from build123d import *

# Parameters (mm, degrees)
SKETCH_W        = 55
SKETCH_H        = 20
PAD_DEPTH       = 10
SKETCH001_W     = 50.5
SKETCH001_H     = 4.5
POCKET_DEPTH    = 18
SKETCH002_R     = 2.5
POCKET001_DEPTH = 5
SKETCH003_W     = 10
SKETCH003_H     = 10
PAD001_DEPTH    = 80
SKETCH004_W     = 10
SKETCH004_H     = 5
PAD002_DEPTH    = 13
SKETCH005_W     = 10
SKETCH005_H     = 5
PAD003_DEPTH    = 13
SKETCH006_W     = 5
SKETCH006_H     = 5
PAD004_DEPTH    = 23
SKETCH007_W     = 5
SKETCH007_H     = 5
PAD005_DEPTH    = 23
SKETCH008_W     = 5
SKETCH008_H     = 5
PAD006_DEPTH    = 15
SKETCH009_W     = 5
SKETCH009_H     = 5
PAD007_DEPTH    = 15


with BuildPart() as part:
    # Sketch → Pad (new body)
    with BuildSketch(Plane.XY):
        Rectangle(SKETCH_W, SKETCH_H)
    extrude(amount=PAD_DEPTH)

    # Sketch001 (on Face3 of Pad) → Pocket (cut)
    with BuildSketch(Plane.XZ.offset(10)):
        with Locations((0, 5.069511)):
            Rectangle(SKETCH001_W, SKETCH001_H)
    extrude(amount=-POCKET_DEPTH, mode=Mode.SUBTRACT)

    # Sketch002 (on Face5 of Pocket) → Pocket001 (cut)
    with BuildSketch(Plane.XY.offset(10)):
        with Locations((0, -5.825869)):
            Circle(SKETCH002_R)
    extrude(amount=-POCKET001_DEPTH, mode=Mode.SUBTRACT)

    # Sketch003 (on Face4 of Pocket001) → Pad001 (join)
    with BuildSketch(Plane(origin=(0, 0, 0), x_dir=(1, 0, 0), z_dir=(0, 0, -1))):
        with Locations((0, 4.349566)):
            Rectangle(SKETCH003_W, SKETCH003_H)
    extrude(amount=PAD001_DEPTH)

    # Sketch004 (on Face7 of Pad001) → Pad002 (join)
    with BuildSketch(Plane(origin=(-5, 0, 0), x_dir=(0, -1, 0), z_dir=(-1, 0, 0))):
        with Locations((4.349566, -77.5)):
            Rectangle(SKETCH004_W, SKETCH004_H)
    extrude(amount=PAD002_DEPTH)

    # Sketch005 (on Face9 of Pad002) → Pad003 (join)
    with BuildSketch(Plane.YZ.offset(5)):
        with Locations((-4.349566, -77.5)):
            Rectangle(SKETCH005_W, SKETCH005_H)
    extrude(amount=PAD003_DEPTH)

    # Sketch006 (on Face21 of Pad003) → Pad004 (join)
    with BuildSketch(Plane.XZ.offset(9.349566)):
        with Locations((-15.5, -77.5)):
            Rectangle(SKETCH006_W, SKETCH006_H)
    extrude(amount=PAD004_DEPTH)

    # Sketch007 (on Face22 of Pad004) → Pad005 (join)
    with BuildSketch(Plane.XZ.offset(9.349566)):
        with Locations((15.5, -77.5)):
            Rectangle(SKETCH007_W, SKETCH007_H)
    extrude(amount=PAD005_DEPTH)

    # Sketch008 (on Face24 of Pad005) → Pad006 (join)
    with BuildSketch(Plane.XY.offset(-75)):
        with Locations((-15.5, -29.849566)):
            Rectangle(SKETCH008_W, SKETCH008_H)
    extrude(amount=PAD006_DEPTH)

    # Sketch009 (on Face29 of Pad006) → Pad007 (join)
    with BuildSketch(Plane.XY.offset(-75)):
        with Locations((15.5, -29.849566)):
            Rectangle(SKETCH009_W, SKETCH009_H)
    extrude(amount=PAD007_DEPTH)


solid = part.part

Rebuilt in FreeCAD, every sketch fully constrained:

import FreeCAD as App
import Part
import Sketcher
from FreeCAD import Vector

doc = App.newDocument("Part")
body = doc.addObject("PartDesign::Body", "Body")

sketch1 = doc.addObject("Sketcher::SketchObject", "Sketch")
body.addObject(sketch1)
sketch1.AttachmentSupport = (doc.XY_Plane, [""])
sketch1.MapMode = "FlatFace"
sketch1.addGeometry([
    Part.LineSegment(Vector(-27.5, 10, 0), Vector(-27.5, -10, 0)),
    Part.LineSegment(Vector(-27.5, -10, 0), Vector(27.5, -10, 0)),
    Part.LineSegment(Vector(27.5, -10, 0), Vector(27.5, 10, 0)),
    Part.LineSegment(Vector(27.5, 10, 0), Vector(-27.5, 10, 0)),
], False)
sketch1.addConstraint([
    Sketcher.Constraint("Coincident", 0, 2, 1, 1),
    Sketcher.Constraint("Coincident", 1, 2, 2, 1),
    Sketcher.Constraint("Coincident", 2, 2, 3, 1),
    Sketcher.Constraint("Coincident", 3, 2, 0, 1),
    Sketcher.Constraint("Vertical", 0),
    Sketcher.Constraint("Horizontal", 1),
    Sketcher.Constraint("Vertical", 2),
    Sketcher.Constraint("Horizontal", 3),
    Sketcher.Constraint("Symmetric", 0, 2, 2, 2, -1, 1),
    Sketcher.Constraint("DistanceX", 1, 1, 1, 2, 55.0),
    Sketcher.Constraint("DistanceY", 0, 2, 0, 1, 20.0),
])
pad1 = doc.addObject("PartDesign::Pad", "Pad")
body.addObject(pad1)
pad1.Profile = sketch1
pad1.Length = 10

sketch2 = doc.addObject("Sketcher::SketchObject", "Sketch001")
body.addObject(sketch2)
sketch2.AttachmentSupport = (doc.XZ_Plane, [""])
sketch2.MapMode = "FlatFace"
sketch2.AttachmentOffset = App.Placement(Vector(0, 0, 10), App.Rotation())
sketch2.addGeometry([
    Part.LineSegment(Vector(-25.25, 7.319511, 0), Vector(-25.25, 2.819511, 0)),
    Part.LineSegment(Vector(-25.25, 2.819511, 0), Vector(25.25, 2.819511, 0)),
    Part.LineSegment(Vector(25.25, 2.819511, 0), Vector(25.25, 7.319511, 0)),
    Part.LineSegment(Vector(25.25, 7.319511, 0), Vector(-25.25, 7.319511, 0)),
], False)
sketch2.addConstraint([
    Sketcher.Constraint("Coincident", 0, 2, 1, 1),
    Sketcher.Constraint("Coincident", 1, 2, 2, 1),
    Sketcher.Constraint("Coincident", 2, 2, 3, 1),
    Sketcher.Constraint("Coincident", 3, 2, 0, 1),
    Sketcher.Constraint("Vertical", 0),
    Sketcher.Constraint("Horizontal", 1),
    Sketcher.Constraint("Vertical", 2),
    Sketcher.Constraint("Horizontal", 3),
    Sketcher.Constraint("DistanceX", 1, 1, 1, 2, 50.5),
    Sketcher.Constraint("DistanceY", 0, 2, 0, 1, 4.5),
    Sketcher.Constraint("DistanceX", 0, 2, -1, 1, 25.25),
    Sketcher.Constraint("DistanceY", -1, 1, 0, 2, 2.819511),
])
pocket1 = doc.addObject("PartDesign::Pocket", "Pocket")
body.addObject(pocket1)
pocket1.Profile = sketch2
pocket1.Length = 18

sketch3 = doc.addObject("Sketcher::SketchObject", "Sketch002")
body.addObject(sketch3)
sketch3.AttachmentSupport = (doc.XY_Plane, [""])
sketch3.MapMode = "FlatFace"
sketch3.AttachmentOffset = App.Placement(Vector(0, 0, 10), App.Rotation())
sketch3.addGeometry(Part.Circle(Vector(0, -5.825869, 0), Vector(0, 0, 1), 2.5), False)
sketch3.addConstraint([
    Sketcher.Constraint("PointOnObject", 0, 3, -2),
    Sketcher.Constraint("Diameter", 0, 5.0),
    Sketcher.Constraint("DistanceY", 0, 3, -1, 1, 5.825869),
])
pocket2 = doc.addObject("PartDesign::Pocket", "Pocket001")
body.addObject(pocket2)
pocket2.Profile = sketch3
pocket2.Length = 5

sketch4 = doc.addObject("Sketcher::SketchObject", "Sketch003")
body.addObject(sketch4)
sketch4.AttachmentSupport = (doc.XY_Plane, [""])
sketch4.MapMode = "FlatFace"
sketch4.addGeometry([
    Part.LineSegment(Vector(-5, -9.349566, 0), Vector(-5, 0.650434, 0)),
    Part.LineSegment(Vector(-5, 0.650434, 0), Vector(5, 0.650434, 0)),
    Part.LineSegment(Vector(5, 0.650434, 0), Vector(5, -9.349566, 0)),
    Part.LineSegment(Vector(5, -9.349566, 0), Vector(-5, -9.349566, 0)),
], False)
sketch4.addConstraint([
    Sketcher.Constraint("Coincident", 0, 2, 1, 1),
    Sketcher.Constraint("Coincident", 1, 2, 2, 1),
    Sketcher.Constraint("Coincident", 2, 2, 3, 1),
    Sketcher.Constraint("Coincident", 3, 2, 0, 1),
    Sketcher.Constraint("Vertical", 0),
    Sketcher.Constraint("Horizontal", 1),
    Sketcher.Constraint("Vertical", 2),
    Sketcher.Constraint("Horizontal", 3),
    Sketcher.Constraint("Equal", 3, 0),
    Sketcher.Constraint("DistanceX", 1, 1, 1, 2, 10.0),
    Sketcher.Constraint("DistanceX", 0, 2, -1, 1, 5.0),
    Sketcher.Constraint("DistanceY", -1, 1, 0, 2, 0.650434),
])
pad2 = doc.addObject("PartDesign::Pad", "Pad001")
body.addObject(pad2)
pad2.Profile = sketch4
pad2.Length = 80
pad2.Reversed = True

sketch5 = doc.addObject("Sketcher::SketchObject", "Sketch004")
body.addObject(sketch5)
sketch5.AttachmentSupport = (doc.YZ_Plane, [""])
sketch5.MapMode = "FlatFace"
sketch5.AttachmentOffset = App.Placement(Vector(0, 0, -5), App.Rotation())
sketch5.addGeometry([
    Part.LineSegment(Vector(0.650434, -75, 0), Vector(0.650434, -80, 0)),
    Part.LineSegment(Vector(0.650434, -80, 0), Vector(-9.349566, -80, 0)),
    Part.LineSegment(Vector(-9.349566, -80, 0), Vector(-9.349566, -75, 0)),
    Part.LineSegment(Vector(-9.349566, -75, 0), Vector(0.650434, -75, 0)),
], False)
sketch5.addConstraint([
    Sketcher.Constraint("Coincident", 0, 2, 1, 1),
    Sketcher.Constraint("Coincident", 1, 2, 2, 1),
    Sketcher.Constraint("Coincident", 2, 2, 3, 1),
    Sketcher.Constraint("Coincident", 3, 2, 0, 1),
    Sketcher.Constraint("Vertical", 0),
    Sketcher.Constraint("Horizontal", 1),
    Sketcher.Constraint("Vertical", 2),
    Sketcher.Constraint("Horizontal", 3),
    Sketcher.Constraint("DistanceX", 1, 2, 1, 1, 10.0),
    Sketcher.Constraint("DistanceY", 0, 2, 0, 1, 5.0),
    Sketcher.Constraint("DistanceY", 0, 2, -1, 1, 80.0),
    Sketcher.Constraint("DistanceX", -1, 1, 0, 2, 0.650434),
])
pad3 = doc.addObject("PartDesign::Pad", "Pad002")
body.addObject(pad3)
pad3.Profile = sketch5
pad3.Length = 13
pad3.Reversed = True

sketch6 = doc.addObject("Sketcher::SketchObject", "Sketch005")
body.addObject(sketch6)
sketch6.AttachmentSupport = (doc.YZ_Plane, [""])
sketch6.MapMode = "FlatFace"
sketch6.AttachmentOffset = App.Placement(Vector(0, 0, 5), App.Rotation())
sketch6.addGeometry([
    Part.LineSegment(Vector(-9.349566, -75, 0), Vector(-9.349566, -80, 0)),
    Part.LineSegment(Vector(-9.349566, -80, 0), Vector(0.650434, -80, 0)),
    Part.LineSegment(Vector(0.650434, -80, 0), Vector(0.650434, -75, 0)),
    Part.LineSegment(Vector(0.650434, -75, 0), Vector(-9.349566, -75, 0)),
], False)
sketch6.addConstraint([
    Sketcher.Constraint("Coincident", 0, 2, 1, 1),
    Sketcher.Constraint("Coincident", 1, 2, 2, 1),
    Sketcher.Constraint("Coincident", 2, 2, 3, 1),
    Sketcher.Constraint("Coincident", 3, 2, 0, 1),
    Sketcher.Constraint("Vertical", 0),
    Sketcher.Constraint("Horizontal", 1),
    Sketcher.Constraint("Vertical", 2),
    Sketcher.Constraint("Horizontal", 3),
    Sketcher.Constraint("DistanceX", 1, 1, 1, 2, 10.0),
    Sketcher.Constraint("DistanceY", 0, 2, 0, 1, 5.0),
    Sketcher.Constraint("DistanceY", 0, 2, -1, 1, 80.0),
    Sketcher.Constraint("DistanceX", 0, 2, -1, 1, 9.349566),
])
pad4 = doc.addObject("PartDesign::Pad", "Pad003")
body.addObject(pad4)
pad4.Profile = sketch6
pad4.Length = 13

sketch7 = doc.addObject("Sketcher::SketchObject", "Sketch006")
body.addObject(sketch7)
sketch7.AttachmentSupport = (doc.XZ_Plane, [""])
sketch7.MapMode = "FlatFace"
sketch7.AttachmentOffset = App.Placement(Vector(0, 0, 9.349566), App.Rotation())
sketch7.addGeometry([
    Part.LineSegment(Vector(-18, -75, 0), Vector(-18, -80, 0)),
    Part.LineSegment(Vector(-18, -80, 0), Vector(-13, -80, 0)),
    Part.LineSegment(Vector(-13, -80, 0), Vector(-13, -75, 0)),
    Part.LineSegment(Vector(-13, -75, 0), Vector(-18, -75, 0)),
], False)
sketch7.addConstraint([
    Sketcher.Constraint("Coincident", 0, 2, 1, 1),
    Sketcher.Constraint("Coincident", 1, 2, 2, 1),
    Sketcher.Constraint("Coincident", 2, 2, 3, 1),
    Sketcher.Constraint("Coincident", 3, 2, 0, 1),
    Sketcher.Constraint("Vertical", 0),
    Sketcher.Constraint("Horizontal", 1),
    Sketcher.Constraint("Vertical", 2),
    Sketcher.Constraint("Horizontal", 3),
    Sketcher.Constraint("Equal", 3, 0),
    Sketcher.Constraint("DistanceX", 1, 1, 1, 2, 5.0),
    Sketcher.Constraint("DistanceX", 0, 2, -1, 1, 18.0),
    Sketcher.Constraint("DistanceY", 0, 2, -1, 1, 80.0),
])
pad5 = doc.addObject("PartDesign::Pad", "Pad004")
body.addObject(pad5)
pad5.Profile = sketch7
pad5.Length = 23

sketch8 = doc.addObject("Sketcher::SketchObject", "Sketch007")
body.addObject(sketch8)
sketch8.AttachmentSupport = (doc.XZ_Plane, [""])
sketch8.MapMode = "FlatFace"
sketch8.AttachmentOffset = App.Placement(Vector(0, 0, 9.349566), App.Rotation())
sketch8.addGeometry([
    Part.LineSegment(Vector(13, -75, 0), Vector(13, -80, 0)),
    Part.LineSegment(Vector(13, -80, 0), Vector(18, -80, 0)),
    Part.LineSegment(Vector(18, -80, 0), Vector(18, -75, 0)),
    Part.LineSegment(Vector(18, -75, 0), Vector(13, -75, 0)),
], False)
sketch8.addConstraint([
    Sketcher.Constraint("Coincident", 0, 2, 1, 1),
    Sketcher.Constraint("Coincident", 1, 2, 2, 1),
    Sketcher.Constraint("Coincident", 2, 2, 3, 1),
    Sketcher.Constraint("Coincident", 3, 2, 0, 1),
    Sketcher.Constraint("Vertical", 0),
    Sketcher.Constraint("Horizontal", 1),
    Sketcher.Constraint("Vertical", 2),
    Sketcher.Constraint("Horizontal", 3),
    Sketcher.Constraint("Equal", 3, 0),
    Sketcher.Constraint("DistanceX", 1, 1, 1, 2, 5.0),
    Sketcher.Constraint("DistanceX", -1, 1, 0, 2, 13.0),
    Sketcher.Constraint("DistanceY", 0, 2, -1, 1, 80.0),
])
pad6 = doc.addObject("PartDesign::Pad", "Pad005")
body.addObject(pad6)
pad6.Profile = sketch8
pad6.Length = 23

sketch9 = doc.addObject("Sketcher::SketchObject", "Sketch008")
body.addObject(sketch9)
sketch9.AttachmentSupport = (doc.XY_Plane, [""])
sketch9.MapMode = "FlatFace"
sketch9.AttachmentOffset = App.Placement(Vector(0, 0, -75), App.Rotation())
sketch9.addGeometry([
    Part.LineSegment(Vector(-18, -27.349566, 0), Vector(-18, -32.349566, 0)),
    Part.LineSegment(Vector(-18, -32.349566, 0), Vector(-13, -32.349566, 0)),
    Part.LineSegment(Vector(-13, -32.349566, 0), Vector(-13, -27.349566, 0)),
    Part.LineSegment(Vector(-13, -27.349566, 0), Vector(-18, -27.349566, 0)),
], False)
sketch9.addConstraint([
    Sketcher.Constraint("Coincident", 0, 2, 1, 1),
    Sketcher.Constraint("Coincident", 1, 2, 2, 1),
    Sketcher.Constraint("Coincident", 2, 2, 3, 1),
    Sketcher.Constraint("Coincident", 3, 2, 0, 1),
    Sketcher.Constraint("Vertical", 0),
    Sketcher.Constraint("Horizontal", 1),
    Sketcher.Constraint("Vertical", 2),
    Sketcher.Constraint("Horizontal", 3),
    Sketcher.Constraint("Equal", 3, 0),
    Sketcher.Constraint("DistanceX", 1, 1, 1, 2, 5.0),
    Sketcher.Constraint("DistanceX", 0, 2, -1, 1, 18.0),
    Sketcher.Constraint("DistanceY", 0, 2, -1, 1, 32.349566),
])
pad7 = doc.addObject("PartDesign::Pad", "Pad006")
body.addObject(pad7)
pad7.Profile = sketch9
pad7.Length = 15

sketch10 = doc.addObject("Sketcher::SketchObject", "Sketch009")
body.addObject(sketch10)
sketch10.AttachmentSupport = (doc.XY_Plane, [""])
sketch10.MapMode = "FlatFace"
sketch10.AttachmentOffset = App.Placement(Vector(0, 0, -75), App.Rotation())
sketch10.addGeometry([
    Part.LineSegment(Vector(13, -27.349566, 0), Vector(13, -32.349566, 0)),
    Part.LineSegment(Vector(13, -32.349566, 0), Vector(18, -32.349566, 0)),
    Part.LineSegment(Vector(18, -32.349566, 0), Vector(18, -27.349566, 0)),
    Part.LineSegment(Vector(18, -27.349566, 0), Vector(13, -27.349566, 0)),
], False)
sketch10.addConstraint([
    Sketcher.Constraint("Coincident", 0, 2, 1, 1),
    Sketcher.Constraint("Coincident", 1, 2, 2, 1),
    Sketcher.Constraint("Coincident", 2, 2, 3, 1),
    Sketcher.Constraint("Coincident", 3, 2, 0, 1),
    Sketcher.Constraint("Vertical", 0),
    Sketcher.Constraint("Horizontal", 1),
    Sketcher.Constraint("Vertical", 2),
    Sketcher.Constraint("Horizontal", 3),
    Sketcher.Constraint("Equal", 3, 0),
    Sketcher.Constraint("DistanceX", 1, 1, 1, 2, 5.0),
    Sketcher.Constraint("DistanceX", -1, 1, 0, 2, 13.0),
    Sketcher.Constraint("DistanceY", 0, 2, -1, 1, 32.349566),
])
pad8 = doc.addObject("PartDesign::Pad", "Pad007")
body.addObject(pad8)
pad8.Profile = sketch10
pad8.Length = 15

doc.recompute()
